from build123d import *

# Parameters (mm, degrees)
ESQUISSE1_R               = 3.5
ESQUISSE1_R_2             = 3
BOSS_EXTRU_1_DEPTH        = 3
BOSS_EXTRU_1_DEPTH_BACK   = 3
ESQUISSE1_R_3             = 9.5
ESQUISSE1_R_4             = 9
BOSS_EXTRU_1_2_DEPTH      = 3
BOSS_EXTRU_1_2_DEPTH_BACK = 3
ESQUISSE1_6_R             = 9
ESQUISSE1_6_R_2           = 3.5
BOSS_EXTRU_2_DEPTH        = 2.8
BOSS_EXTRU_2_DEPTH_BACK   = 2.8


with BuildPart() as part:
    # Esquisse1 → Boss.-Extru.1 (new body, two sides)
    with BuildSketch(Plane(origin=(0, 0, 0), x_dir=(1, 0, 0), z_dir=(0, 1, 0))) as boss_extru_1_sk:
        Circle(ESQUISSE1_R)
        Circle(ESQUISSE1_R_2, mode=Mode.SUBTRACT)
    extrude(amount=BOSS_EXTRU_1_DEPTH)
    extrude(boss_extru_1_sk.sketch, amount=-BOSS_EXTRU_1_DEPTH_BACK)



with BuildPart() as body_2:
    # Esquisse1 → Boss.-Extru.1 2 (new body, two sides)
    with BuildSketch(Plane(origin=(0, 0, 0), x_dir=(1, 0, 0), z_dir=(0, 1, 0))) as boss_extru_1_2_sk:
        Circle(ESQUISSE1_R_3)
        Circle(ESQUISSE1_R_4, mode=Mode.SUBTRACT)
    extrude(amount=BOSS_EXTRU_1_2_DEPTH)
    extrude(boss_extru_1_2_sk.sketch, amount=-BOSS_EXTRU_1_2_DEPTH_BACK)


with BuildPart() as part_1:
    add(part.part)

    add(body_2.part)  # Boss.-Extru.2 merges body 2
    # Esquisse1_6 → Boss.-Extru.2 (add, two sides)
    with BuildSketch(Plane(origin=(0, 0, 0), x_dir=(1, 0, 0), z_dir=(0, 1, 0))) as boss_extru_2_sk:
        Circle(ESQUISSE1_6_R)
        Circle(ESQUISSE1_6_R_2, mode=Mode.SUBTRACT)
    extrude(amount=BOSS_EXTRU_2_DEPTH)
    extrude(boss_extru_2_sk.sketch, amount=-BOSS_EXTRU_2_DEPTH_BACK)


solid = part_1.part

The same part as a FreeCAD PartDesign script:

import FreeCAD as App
import Part
import Sketcher

doc = App.newDocument("Part")
body = doc.addObject("PartDesign::Body", "Body")

# Sketch on XZ plane
sketch1 = doc.addObject("Sketcher::SketchObject", "Sketch")
body.addObject(sketch1)
sketch1.AttachmentSupport = (doc.XZ_Plane, [""])
sketch1.MapMode = "FlatFace"
sketch1.addGeometry(Part.Circle(App.Vector(0, 0, 0), App.Vector(0, 0, 1), 3.5), False)
sketch1.addGeometry(Part.Circle(App.Vector(0, 0, 0), App.Vector(0, 0, 1), 3), False)
sketch1.addConstraint(Sketcher.Constraint("Coincident", 0, 3, -1, 1))
sketch1.addConstraint(Sketcher.Constraint("Coincident", 1, 3, -1, 1))
sketch1.addConstraint(Sketcher.Constraint("Diameter", 0, 7.0))
sketch1.addConstraint(Sketcher.Constraint("Diameter", 1, 6.0))
pad1 = doc.addObject("PartDesign::Pad", "Pad")
body.addObject(pad1)
pad1.Profile = sketch1
pad1.Type = "TwoLengths"
pad1.Length = 3
pad1.Length2 = 3
pad1.Reversed = True
body2 = doc.addObject("PartDesign::Body", "Body001")

# Sketch on XZ plane
sketch2 = doc.addObject("Sketcher::SketchObject", "Sketch001")
body2.addObject(sketch2)
sketch2.AttachmentSupport = (doc.getObject("XZ_Plane001"), [""])
sketch2.MapMode = "FlatFace"
sketch2.addGeometry(Part.Circle(App.Vector(0, 0, 0), App.Vector(0, 0, 1), 10), False)
sketch2.addGeometry(Part.Circle(App.Vector(0, 0, 0), App.Vector(0, 0, 1), 9), False)
sketch2.addConstraint(Sketcher.Constraint("Coincident", 0, 3, -1, 1))
sketch2.addConstraint(Sketcher.Constraint("Coincident", 1, 3, -1, 1))
sketch2.addConstraint(Sketcher.Constraint("Diameter", 0, 19.0))
sketch2.addConstraint(Sketcher.Constraint("Diameter", 1, 18.0))
pad2 = doc.addObject("PartDesign::Pad", "Pad001")
body2.addObject(pad2)
pad2.Profile = sketch2
pad2.Type = "TwoLengths"
pad2.Length = 3
pad2.Length2 = 3
pad2.Reversed = True
body.AllowCompound = True
doc.recompute()

boolean = doc.addObject("PartDesign::Boolean", "Boolean")
body.addObject(boolean)
boolean.Type = "Fuse"
boolean.addObjects([body2])

# Sketch on XZ plane
sketch3 = doc.addObject("Sketcher::SketchObject", "Sketch002")
body.addObject(sketch3)
sketch3.AttachmentSupport = (doc.XZ_Plane, [""])
sketch3.MapMode = "FlatFace"
sketch3.addGeometry(Part.Circle(App.Vector(0, 0, 0), App.Vector(0, 0, 1), 9), False)
sketch3.addGeometry(Part.Circle(App.Vector(0, 0, 0), App.Vector(0, 0, 1), 3.5), False)
sketch3.addConstraint(Sketcher.Constraint("Coincident", 0, 3, -1, 1))
sketch3.addConstraint(Sketcher.Constraint("Coincident", 1, 3, -1, 1))
sketch3.addConstraint(Sketcher.Constraint("Diameter", 0, 18.0))
sketch3.addConstraint(Sketcher.Constraint("Diameter", 1, 7.0))
pad3 = doc.addObject("PartDesign::Pad", "Pad002")
body.addObject(pad3)
pad3.Profile = sketch3
pad3.Type = "TwoLengths"
pad3.Length = 2.8
pad3.Length2 = 2.8
pad3.Reversed = True

doc.recompute()
